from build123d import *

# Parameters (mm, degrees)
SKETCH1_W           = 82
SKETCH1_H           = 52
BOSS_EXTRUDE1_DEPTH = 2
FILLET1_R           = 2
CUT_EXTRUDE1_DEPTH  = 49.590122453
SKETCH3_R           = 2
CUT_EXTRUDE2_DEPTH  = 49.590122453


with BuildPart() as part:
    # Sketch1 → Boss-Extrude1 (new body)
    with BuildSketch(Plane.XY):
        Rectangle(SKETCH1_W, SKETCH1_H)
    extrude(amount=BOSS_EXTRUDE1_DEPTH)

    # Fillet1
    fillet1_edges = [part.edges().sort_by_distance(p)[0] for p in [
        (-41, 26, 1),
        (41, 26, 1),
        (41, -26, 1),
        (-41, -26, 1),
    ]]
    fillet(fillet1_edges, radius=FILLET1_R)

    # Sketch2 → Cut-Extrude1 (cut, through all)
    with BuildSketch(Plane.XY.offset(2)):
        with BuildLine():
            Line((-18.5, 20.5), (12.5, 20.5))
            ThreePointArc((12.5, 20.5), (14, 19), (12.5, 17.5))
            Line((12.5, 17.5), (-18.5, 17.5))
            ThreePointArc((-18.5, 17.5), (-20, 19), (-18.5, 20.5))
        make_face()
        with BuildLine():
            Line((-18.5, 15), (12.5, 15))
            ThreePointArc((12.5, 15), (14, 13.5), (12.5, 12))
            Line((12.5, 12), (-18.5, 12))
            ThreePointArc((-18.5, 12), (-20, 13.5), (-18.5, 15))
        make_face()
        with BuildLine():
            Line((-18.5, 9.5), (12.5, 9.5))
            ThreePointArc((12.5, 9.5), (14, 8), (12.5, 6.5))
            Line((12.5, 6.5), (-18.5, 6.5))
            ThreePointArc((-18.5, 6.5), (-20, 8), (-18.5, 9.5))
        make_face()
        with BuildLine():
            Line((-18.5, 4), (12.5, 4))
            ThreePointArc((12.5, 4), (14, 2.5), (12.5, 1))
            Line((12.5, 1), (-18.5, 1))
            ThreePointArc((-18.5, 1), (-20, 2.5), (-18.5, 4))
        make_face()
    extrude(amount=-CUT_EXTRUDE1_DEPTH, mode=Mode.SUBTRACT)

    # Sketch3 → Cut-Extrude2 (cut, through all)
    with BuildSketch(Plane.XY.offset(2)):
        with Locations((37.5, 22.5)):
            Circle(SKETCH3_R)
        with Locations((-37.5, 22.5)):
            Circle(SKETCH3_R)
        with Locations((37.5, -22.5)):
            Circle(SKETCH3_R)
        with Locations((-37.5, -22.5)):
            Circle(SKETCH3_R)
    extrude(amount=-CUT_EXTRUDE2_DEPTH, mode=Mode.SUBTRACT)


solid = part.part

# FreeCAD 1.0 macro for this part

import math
import FreeCAD as App
import Part
import Sketcher
from FreeCAD import Vector


def edges_at(feature, points):
    """Names of the edges that pass closest to the given points."""
    edges = feature.Shape.Edges
    near = lambda p: min(range(len(edges)), key=lambda i: edges[i].distToShape(Part.Vertex(*p))[0])
    return sorted({f"Edge{near(p) + 1}" for p in points})

doc = App.newDocument("Part")
body = doc.addObject("PartDesign::Body", "Body")

sketch1 = doc.addObject("Sketcher::SketchObject", "Sketch")
body.addObject(sketch1)
sketch1.AttachmentSupport = (doc.XY_Plane, [""])
sketch1.MapMode = "FlatFace"
sketch1.addGeometry([
    Part.LineSegment(Vector(-41, 26, 0), Vector(-41, -26, 0)),
    Part.LineSegment(Vector(-41, -26, 0), Vector(41, -26, 0)),
    Part.LineSegment(Vector(41, -26, 0), Vector(41, 26, 0)),
    Part.LineSegment(Vector(41, 26, 0), Vector(-41, 26, 0)),
], False)
sketch1.addConstraint([
    Sketcher.Constraint("Coincident", 0, 2, 1, 1),
    Sketcher.Constraint("Coincident", 1, 2, 2, 1),
    Sketcher.Constraint("Coincident", 2, 2, 3, 1),
    Sketcher.Constraint("Coincident", 3, 2, 0, 1),
    Sketcher.Constraint("Vertical", 0),
    Sketcher.Constraint("Horizontal", 1),
    Sketcher.Constraint("Vertical", 2),
    Sketcher.Constraint("Horizontal", 3),
    Sketcher.Constraint("Symmetric", 0, 2, 2, 2, -1, 1),
    Sketcher.Constraint("DistanceX", 1, 1, 1, 2, 82.0),
    Sketcher.Constraint("DistanceY", 0, 2, 0, 1, 52.0),
])
pad1 = doc.addObject("PartDesign::Pad", "Pad")
body.addObject(pad1)
pad1.Profile = sketch1
pad1.Length = 2
doc.recompute()

fillet = doc.addObject("PartDesign::Fillet", "Fillet")
body.addObject(fillet)
fillet.Base = (pad1, edges_at(pad1, [
    (-41, 26, 1),
    (41, 26, 1),
    (41, -26, 1),
    (-41, -26, 1),
]))
fillet.Radius = 2

sketch2 = doc.addObject("Sketcher::SketchObject", "Sketch001")
body.addObject(sketch2)
sketch2.AttachmentSupport = (doc.XY_Plane, [""])
sketch2.MapMode = "FlatFace"
sketch2.AttachmentOffset = App.Placement(Vector(0, 0, 2), App.Rotation())
sketch2.addGeometry([
    Part.LineSegment(Vector(12.5, 20.5, 0), Vector(-18.5, 20.5, 0)),
    Part.ArcOfCircle(Part.Circle(Vector(-18.5, 19, 0), Vector(0, 0, 1), 1.5), math.radians(90), math.radians(270)),
    Part.LineSegment(Vector(-18.5, 17.5, 0), Vector(12.5, 17.5, 0)),
    Part.ArcOfCircle(Part.Circle(Vector(12.5, 19, 0), Vector(0, 0, 1), 1.5), math.radians(-90), math.radians(90)),
    Part.LineSegment(Vector(12.5, 15, 0), Vector(-18.5, 15, 0)),
    Part.ArcOfCircle(Part.Circle(Vector(-18.5, 13.5, 0), Vector(0, 0, 1), 1.5), math.radians(90), math.radians(270)),
    Part.LineSegment(Vector(-18.5, 12, 0), Vector(12.5, 12, 0)),
    Part.ArcOfCircle(Part.Circle(Vector(12.5, 13.5, 0), Vector(0, 0, 1), 1.5), math.radians(-90), math.radians(90)),
    Part.LineSegment(Vector(12.5, 9.5, 0), Vector(-18.5, 9.5, 0)),
    Part.ArcOfCircle(Part.Circle(Vector(-18.5, 8, 0), Vector(0, 0, 1), 1.5), math.radians(90), math.radians(270)),
    Part.LineSegment(Vector(-18.5, 6.5, 0), Vector(12.5, 6.5, 0)),
    Part.ArcOfCircle(Part.Circle(Vector(12.5, 8, 0), Vector(0, 0, 1), 1.5), math.radians(-90), math.radians(90)),
    Part.LineSegment(Vector(12.5, 4, 0), Vector(-18.5, 4, 0)),
    Part.ArcOfCircle(Part.Circle(Vector(-18.5, 2.5, 0), Vector(0, 0, 1), 1.5), math.radians(90), math.radians(270)),
    Part.LineSegment(Vector(-18.5, 1, 0), Vector(12.5, 1, 0)),
    Part.ArcOfCircle(Part.Circle(Vector(12.5, 2.5, 0), Vector(0, 0, 1), 1.5), math.radians(-90), math.radians(90)),
], False)
sketch2.addConstraint([
    Sketcher.Constraint("Tangent", 0, 2, 1, 1),
    Sketcher.Constraint("Tangent", 1, 2, 2, 1),
    Sketcher.Constraint("Tangent", 2, 2, 3, 1),
    Sketcher.Constraint("Tangent", 3, 2, 0, 1),
    Sketcher.Constraint("Tangent", 4, 2, 5, 1),
    Sketcher.Constraint("Tangent", 5, 2, 6, 1),
    Sketcher.Constraint("Tangent", 6, 2, 7, 1),
    Sketcher.Constraint("Tangent", 7, 2, 4, 1),
    Sketcher.Constraint("Tangent", 8, 2, 9, 1),
    Sketcher.Constraint("Tangent", 9, 2, 10, 1),
    Sketcher.Constraint("Tangent", 10, 2, 11, 1),
    Sketcher.Constraint("Tangent", 11, 2, 8, 1),
    Sketcher.Constraint("Tangent", 12, 2, 13, 1),
    Sketcher.Constraint("Tangent", 13, 2, 14, 1),
    Sketcher.Constraint("Tangent", 14, 2, 15, 1),
    Sketcher.Constraint("Tangent", 15, 2, 12, 1),
    Sketcher.Constraint("Horizontal", 0),
    Sketcher.Constraint("Horizontal", 2),
    Sketcher.Constraint("Horizontal", 4),
    Sketcher.Constraint("Horizontal", 6),
    Sketcher.Constraint("Horizontal", 8),
    Sketcher.Constraint("Horizontal", 10),
    Sketcher.Constraint("Horizontal", 12),
    Sketcher.Constraint("Horizontal", 14),
    Sketcher.Constraint("Equal", 3, 5),
    Sketcher.Constraint("Equal", 7, 9),
    Sketcher.Constraint("Equal", 11, 13),
    Sketcher.Constraint("Vertical", 1, 3, 5, 3),
    Sketcher.Constraint("Vertical", 3, 3, 7, 3),
    Sketcher.Constraint("Vertical", 5, 3, 9, 3),
    Sketcher.Constraint("Vertical", 7, 3, 11, 3),
    Sketcher.Constraint("Vertical", 9, 3, 13, 3),
    Sketcher.Constraint("Vertical", 11, 3, 15, 3),
    Sketcher.Constraint("Radius", 1, 1.5),
    Sketcher.Constraint("DistanceX", 0, 2, 0, 1, 31.0),
    Sketcher.Constraint("DistanceY", -1, 1, 1, 3, 19.0),
    Sketcher.Constraint("DistanceY", -1, 1, 9, 3, 8.0),
    Sketcher.Constraint("DistanceY", -1, 1, 4, 2, 15.0),
    Sketcher.Constraint("DistanceY", -1, 1, 12, 2, 4.0),
    Sketcher.Constraint("DistanceX", 1, 3, -1, 1, 18.5),
])
pocket1 = doc.addObject("PartDesign::Pocket", "Pocket")
body.addObject(pocket1)
pocket1.Profile = sketch2
pocket1.Type = "ThroughAll"

sketch3 = doc.addObject("Sketcher::SketchObject", "Sketch002")
body.addObject(sketch3)
sketch3.AttachmentSupport = (doc.XY_Plane, [""])
sketch3.MapMode = "FlatFace"
sketch3.AttachmentOffset = App.Placement(Vector(0, 0, 2), App.Rotation())
sketch3.addGeometry([
    Part.Circle(Vector(37.5, 22.5, 0), Vector(0, 0, 1), 2),
    Part.Circle(Vector(-37.5, 22.5, 0), Vector(0, 0, 1), 2),
    Part.Circle(Vector(37.5, -22.5, 0), Vector(0, 0, 1), 2),
    Part.Circle(Vector(-37.5, -22.5, 0), Vector(0, 0, 1), 2),
], False)
sketch3.addConstraint([
    Sketcher.Constraint("Equal", 0, 1),
    Sketcher.Constraint("Equal", 1, 2),
    Sketcher.Constraint("Equal", 2, 3),
    Sketcher.Constraint("Symmetric", 1, 3, 2, 3, -1, 1),
    Sketcher.Constraint("Symmetric", 0, 3, 3, 3, -1, 1),
    Sketcher.Constraint("Symmetric", 0, 3, 1, 3, -2),
    Sketcher.Constraint("Diameter", 0, 4.0),
    Sketcher.Constraint("DistanceX", 1, 3, 0, 3, 75.0),
    Sketcher.Constraint("DistanceY", 2, 3, 0, 3, 45.0),
])
pocket2 = doc.addObject("PartDesign::Pocket", "Pocket001")
body.addObject(pocket2)
pocket2.Profile = sketch3
pocket2.Type = "ThroughAll"

doc.recompute()
